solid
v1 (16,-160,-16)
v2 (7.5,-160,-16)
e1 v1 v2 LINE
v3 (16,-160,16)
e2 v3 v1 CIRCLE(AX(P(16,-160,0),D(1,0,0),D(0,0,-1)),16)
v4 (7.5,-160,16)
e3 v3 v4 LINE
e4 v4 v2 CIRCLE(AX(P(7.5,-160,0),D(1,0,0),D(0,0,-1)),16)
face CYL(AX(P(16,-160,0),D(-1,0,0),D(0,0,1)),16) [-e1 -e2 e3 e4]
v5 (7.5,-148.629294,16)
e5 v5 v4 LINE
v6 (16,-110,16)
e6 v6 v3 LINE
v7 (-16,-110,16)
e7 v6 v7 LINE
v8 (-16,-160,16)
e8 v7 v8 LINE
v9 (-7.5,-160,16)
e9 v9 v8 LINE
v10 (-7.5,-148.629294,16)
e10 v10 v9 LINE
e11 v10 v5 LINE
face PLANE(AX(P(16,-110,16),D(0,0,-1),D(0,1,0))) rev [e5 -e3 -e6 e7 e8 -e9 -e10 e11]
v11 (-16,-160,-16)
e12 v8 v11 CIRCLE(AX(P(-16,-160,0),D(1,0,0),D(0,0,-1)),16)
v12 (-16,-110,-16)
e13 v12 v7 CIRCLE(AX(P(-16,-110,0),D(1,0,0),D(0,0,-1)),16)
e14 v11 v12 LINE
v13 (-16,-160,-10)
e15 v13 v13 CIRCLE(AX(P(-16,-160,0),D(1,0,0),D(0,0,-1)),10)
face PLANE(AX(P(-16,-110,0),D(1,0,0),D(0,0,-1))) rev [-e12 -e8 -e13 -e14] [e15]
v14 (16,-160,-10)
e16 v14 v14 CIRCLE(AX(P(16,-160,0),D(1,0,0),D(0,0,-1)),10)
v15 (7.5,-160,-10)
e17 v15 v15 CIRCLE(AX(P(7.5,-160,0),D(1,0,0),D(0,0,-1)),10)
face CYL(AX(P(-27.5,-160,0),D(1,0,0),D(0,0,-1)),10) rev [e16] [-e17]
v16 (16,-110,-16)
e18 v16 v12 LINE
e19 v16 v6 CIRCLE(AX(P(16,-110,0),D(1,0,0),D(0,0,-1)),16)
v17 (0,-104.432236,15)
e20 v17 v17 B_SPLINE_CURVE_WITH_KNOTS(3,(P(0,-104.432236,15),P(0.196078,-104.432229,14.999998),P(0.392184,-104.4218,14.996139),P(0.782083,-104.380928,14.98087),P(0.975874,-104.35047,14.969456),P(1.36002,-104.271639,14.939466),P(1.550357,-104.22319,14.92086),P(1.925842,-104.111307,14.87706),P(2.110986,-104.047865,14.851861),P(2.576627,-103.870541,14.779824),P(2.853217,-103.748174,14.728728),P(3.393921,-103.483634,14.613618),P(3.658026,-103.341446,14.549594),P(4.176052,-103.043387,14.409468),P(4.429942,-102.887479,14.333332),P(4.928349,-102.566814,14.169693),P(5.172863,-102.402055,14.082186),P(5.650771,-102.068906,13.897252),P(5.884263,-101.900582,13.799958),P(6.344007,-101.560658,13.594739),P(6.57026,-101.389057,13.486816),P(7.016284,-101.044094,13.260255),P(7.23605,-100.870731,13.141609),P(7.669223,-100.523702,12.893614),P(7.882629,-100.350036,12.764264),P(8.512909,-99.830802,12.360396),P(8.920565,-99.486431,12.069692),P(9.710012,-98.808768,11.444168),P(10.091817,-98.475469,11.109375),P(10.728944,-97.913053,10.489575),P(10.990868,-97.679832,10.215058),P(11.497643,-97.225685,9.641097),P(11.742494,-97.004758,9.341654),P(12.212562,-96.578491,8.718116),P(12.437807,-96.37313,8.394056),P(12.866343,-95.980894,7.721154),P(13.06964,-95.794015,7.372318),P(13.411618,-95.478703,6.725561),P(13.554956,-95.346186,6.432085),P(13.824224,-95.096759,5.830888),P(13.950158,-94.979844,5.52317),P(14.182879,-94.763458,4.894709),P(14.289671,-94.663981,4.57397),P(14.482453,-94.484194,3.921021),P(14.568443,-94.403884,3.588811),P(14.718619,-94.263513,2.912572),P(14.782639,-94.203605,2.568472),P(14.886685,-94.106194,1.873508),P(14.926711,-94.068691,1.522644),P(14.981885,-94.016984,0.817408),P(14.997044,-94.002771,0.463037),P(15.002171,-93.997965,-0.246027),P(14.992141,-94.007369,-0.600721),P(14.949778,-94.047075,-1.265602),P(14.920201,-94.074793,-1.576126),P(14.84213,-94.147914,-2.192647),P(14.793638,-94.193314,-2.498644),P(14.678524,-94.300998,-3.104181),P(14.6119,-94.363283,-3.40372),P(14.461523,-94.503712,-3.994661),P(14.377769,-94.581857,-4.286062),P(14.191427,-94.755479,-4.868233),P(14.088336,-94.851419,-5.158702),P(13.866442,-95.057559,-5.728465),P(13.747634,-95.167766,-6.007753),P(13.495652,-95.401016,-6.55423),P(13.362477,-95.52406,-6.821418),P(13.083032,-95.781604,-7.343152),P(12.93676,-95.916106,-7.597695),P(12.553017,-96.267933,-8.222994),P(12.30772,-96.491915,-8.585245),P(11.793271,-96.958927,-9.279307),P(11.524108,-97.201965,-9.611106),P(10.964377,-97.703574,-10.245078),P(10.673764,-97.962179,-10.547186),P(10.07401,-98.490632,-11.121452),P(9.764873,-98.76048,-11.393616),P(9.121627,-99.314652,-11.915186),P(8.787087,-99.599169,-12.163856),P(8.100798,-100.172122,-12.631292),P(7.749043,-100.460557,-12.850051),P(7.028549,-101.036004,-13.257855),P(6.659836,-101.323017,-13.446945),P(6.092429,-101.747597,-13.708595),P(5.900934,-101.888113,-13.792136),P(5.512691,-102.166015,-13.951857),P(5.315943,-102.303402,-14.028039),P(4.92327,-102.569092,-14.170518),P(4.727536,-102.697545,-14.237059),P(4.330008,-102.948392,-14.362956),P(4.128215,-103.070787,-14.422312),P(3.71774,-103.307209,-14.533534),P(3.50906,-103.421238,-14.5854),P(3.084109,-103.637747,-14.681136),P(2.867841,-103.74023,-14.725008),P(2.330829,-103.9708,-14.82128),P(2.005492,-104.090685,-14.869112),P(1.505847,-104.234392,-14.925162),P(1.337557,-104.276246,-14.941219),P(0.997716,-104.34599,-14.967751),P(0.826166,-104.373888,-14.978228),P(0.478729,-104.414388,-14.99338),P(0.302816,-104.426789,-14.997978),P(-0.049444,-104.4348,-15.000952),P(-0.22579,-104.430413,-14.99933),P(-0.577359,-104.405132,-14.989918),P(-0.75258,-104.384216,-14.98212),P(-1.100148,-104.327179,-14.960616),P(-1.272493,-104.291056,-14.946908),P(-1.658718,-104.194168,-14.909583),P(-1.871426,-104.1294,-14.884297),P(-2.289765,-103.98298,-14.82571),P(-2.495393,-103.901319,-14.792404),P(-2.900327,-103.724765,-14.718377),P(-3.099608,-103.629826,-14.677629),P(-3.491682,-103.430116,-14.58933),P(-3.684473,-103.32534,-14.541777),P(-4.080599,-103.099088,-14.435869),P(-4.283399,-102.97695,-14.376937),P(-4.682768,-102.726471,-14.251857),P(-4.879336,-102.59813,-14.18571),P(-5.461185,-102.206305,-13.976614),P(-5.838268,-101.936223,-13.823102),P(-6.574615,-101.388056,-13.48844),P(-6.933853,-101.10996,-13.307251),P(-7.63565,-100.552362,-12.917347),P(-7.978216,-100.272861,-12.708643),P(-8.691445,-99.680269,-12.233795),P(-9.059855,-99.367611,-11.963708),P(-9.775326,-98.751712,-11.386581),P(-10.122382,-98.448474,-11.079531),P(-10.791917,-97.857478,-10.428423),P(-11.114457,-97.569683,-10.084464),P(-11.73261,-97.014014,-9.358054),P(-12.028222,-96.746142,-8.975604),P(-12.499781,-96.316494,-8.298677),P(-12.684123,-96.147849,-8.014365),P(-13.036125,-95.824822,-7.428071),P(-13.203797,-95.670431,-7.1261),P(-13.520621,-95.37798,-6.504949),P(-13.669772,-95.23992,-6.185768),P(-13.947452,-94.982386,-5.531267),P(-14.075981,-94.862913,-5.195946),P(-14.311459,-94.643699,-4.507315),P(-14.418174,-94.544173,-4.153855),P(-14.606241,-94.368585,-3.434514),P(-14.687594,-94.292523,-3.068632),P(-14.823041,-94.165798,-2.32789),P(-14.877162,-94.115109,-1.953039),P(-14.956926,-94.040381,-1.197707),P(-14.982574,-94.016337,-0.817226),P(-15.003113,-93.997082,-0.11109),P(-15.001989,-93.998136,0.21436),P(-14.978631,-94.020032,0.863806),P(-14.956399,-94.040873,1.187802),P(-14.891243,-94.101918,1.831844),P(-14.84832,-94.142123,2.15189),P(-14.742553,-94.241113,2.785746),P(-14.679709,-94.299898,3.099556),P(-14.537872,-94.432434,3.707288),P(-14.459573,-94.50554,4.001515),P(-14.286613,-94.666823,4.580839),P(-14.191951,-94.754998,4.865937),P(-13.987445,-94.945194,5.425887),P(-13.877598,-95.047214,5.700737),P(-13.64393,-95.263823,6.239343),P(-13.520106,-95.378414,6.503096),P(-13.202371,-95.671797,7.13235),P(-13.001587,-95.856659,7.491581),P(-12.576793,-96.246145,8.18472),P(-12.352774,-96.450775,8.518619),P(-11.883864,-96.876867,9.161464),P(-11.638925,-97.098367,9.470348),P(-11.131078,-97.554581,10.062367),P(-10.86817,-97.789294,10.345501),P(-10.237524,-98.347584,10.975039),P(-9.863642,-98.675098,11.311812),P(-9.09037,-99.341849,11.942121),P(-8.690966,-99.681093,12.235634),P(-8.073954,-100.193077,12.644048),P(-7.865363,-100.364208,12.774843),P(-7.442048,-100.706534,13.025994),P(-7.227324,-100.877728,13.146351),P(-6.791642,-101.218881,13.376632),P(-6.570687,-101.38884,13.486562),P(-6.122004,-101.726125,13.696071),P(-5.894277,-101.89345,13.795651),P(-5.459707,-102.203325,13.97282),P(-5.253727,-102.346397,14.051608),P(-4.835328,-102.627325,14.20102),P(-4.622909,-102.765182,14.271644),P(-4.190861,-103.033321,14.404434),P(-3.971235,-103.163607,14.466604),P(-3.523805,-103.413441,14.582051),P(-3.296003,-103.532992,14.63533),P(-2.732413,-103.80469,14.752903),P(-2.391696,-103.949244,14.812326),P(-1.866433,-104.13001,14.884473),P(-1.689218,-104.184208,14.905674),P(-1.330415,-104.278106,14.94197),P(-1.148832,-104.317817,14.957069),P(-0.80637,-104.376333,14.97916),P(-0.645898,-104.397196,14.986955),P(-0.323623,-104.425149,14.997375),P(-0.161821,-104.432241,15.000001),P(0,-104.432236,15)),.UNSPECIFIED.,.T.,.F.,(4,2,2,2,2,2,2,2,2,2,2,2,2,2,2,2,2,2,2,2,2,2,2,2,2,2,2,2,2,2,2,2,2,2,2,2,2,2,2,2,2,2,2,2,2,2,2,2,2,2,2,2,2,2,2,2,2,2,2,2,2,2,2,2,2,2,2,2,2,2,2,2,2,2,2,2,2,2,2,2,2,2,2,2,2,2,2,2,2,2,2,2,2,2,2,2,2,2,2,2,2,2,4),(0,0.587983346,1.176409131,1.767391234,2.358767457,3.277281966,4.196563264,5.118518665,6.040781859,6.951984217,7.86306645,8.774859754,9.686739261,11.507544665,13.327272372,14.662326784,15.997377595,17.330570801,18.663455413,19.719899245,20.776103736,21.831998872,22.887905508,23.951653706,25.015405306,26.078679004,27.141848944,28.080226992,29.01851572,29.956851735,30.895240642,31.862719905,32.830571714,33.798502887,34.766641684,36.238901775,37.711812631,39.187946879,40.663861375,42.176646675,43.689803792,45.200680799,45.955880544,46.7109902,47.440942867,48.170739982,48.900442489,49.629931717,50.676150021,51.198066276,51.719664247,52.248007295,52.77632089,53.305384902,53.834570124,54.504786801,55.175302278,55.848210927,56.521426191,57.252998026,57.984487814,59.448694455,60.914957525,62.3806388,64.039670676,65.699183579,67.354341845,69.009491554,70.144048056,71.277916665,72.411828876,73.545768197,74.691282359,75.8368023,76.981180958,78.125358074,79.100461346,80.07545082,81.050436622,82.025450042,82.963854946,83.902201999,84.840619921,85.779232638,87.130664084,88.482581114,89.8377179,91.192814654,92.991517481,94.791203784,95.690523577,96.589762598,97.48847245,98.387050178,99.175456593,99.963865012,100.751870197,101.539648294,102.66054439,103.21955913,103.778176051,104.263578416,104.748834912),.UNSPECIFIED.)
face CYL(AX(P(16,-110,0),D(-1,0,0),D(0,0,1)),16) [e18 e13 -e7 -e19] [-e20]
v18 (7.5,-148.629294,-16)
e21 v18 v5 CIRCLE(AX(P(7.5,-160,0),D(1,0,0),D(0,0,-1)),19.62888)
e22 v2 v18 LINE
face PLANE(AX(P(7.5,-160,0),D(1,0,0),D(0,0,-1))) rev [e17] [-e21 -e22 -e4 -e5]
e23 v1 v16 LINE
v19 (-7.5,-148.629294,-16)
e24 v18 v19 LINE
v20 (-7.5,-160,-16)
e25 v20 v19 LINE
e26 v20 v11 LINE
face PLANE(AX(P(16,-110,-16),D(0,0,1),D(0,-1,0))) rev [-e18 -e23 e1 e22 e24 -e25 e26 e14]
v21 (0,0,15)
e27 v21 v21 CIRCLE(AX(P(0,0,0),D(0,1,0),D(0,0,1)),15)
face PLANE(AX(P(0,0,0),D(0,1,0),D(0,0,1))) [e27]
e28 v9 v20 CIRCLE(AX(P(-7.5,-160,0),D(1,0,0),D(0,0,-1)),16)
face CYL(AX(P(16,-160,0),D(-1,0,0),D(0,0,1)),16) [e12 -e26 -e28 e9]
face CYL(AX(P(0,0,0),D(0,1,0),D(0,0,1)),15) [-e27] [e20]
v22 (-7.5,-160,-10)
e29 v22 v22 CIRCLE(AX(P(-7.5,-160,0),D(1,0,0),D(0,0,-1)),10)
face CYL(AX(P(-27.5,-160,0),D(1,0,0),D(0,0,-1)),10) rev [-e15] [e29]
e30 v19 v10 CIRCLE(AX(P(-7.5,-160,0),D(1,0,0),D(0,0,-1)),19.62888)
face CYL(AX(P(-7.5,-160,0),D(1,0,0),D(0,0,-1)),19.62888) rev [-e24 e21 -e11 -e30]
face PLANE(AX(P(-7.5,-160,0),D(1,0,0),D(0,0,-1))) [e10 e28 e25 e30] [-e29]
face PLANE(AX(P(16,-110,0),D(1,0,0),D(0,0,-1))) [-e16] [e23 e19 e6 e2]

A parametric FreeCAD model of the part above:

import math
import FreeCAD as App
import Part
import Sketcher
Q = App.Units.Quantity

doc = App.newDocument("Part")
body = doc.addObject("PartDesign::Body", "Body")

# Sketch on YZ plane
sketch1 = body.newObject("Sketcher::SketchObject", "Sketch")
sketch1.AttachmentSupport = (doc.getObject("YZ_Plane"), [""])
sketch1.MapMode = "FlatFace"
sketch1.addGeometry([
    Part.LineSegment(App.Vector(0, 15, 0), App.Vector(-110, 15, 0)),
    Part.LineSegment(App.Vector(-110, 15, 0), App.Vector(-110, 0, 0)),
    Part.LineSegment(App.Vector(-110, 0, 0), App.Vector(0, 0, 0)),
    Part.LineSegment(App.Vector(0, 0, 0), App.Vector(0, 15, 0)),
], False)
sketch1.addConstraint([
    Sketcher.Constraint("Coincident", 0, 2, 1, 1),
    Sketcher.Constraint("Coincident", 1, 2, 2, 1),
    Sketcher.Constraint("Coincident", 2, 2, 3, 1),
    Sketcher.Constraint("Coincident", 3, 2, 0, 1),
    Sketcher.Constraint("Horizontal", 0),
    Sketcher.Constraint("Vertical", 1),
    Sketcher.Constraint("Horizontal", 2),
    Sketcher.Constraint("Vertical", 3),
    Sketcher.Constraint("Coincident", 2, 2, -1, 1),
    Sketcher.Constraint("DistanceX", 0, 2, 0, 1, Q("110 mm")),
    Sketcher.Constraint("DistanceY", 1, 2, 1, 1, Q("15 mm")),
])
revolution = body.newObject("PartDesign::Revolution", "Revolution")
revolution.Profile = sketch1
revolution.ReferenceAxis = (sketch1, ["H_Axis"])
revolution.Angle = 360

# Sketch on YZ plane
sketch2 = body.newObject("Sketcher::SketchObject", "Sketch001")
sketch2.AttachmentSupport = (doc.getObject("YZ_Plane"), [""])
sketch2.MapMode = "FlatFace"
sketch2.addGeometry([
    Part.LineSegment(App.Vector(-160, -16, 0), App.Vector(-110, -16, 0)),
    Part.ArcOfCircle(Part.Circle(App.Vector(-110, 0, 0), App.Vector(0, 0, 1), 16), math.radians(-90), math.radians(90)),
    Part.LineSegment(App.Vector(-110, 16, 0), App.Vector(-160, 16, 0)),
    Part.ArcOfCircle(Part.Circle(App.Vector(-160, 0, 0), App.Vector(0, 0, 1), 16), math.radians(90), math.radians(270)),
], False)
sketch2.addConstraint([
    Sketcher.Constraint("Tangent", 0, 2, 1, 1),
    Sketcher.Constraint("Tangent", 1, 2, 2, 1),
    Sketcher.Constraint("Tangent", 2, 2, 3, 1),
    Sketcher.Constraint("Tangent", 3, 2, 0, 1),
    Sketcher.Constraint("Horizontal", 0),
    Sketcher.Constraint("Horizontal", 2),
    Sketcher.Constraint("PointOnObject", 1, 3, -1),
    Sketcher.Constraint("Radius", 1, Q("16 mm")),
    Sketcher.Constraint("DistanceX", 0, 1, 0, 2, Q("50 mm")),
    Sketcher.Constraint("DistanceX", 1, 3, -1, 1, Q("110 mm")),
])
pad1 = body.newObject("PartDesign::Pad", "Pad")
pad1.Profile = sketch2
pad1.Length = 32
pad1.Midplane = True

# Sketch on YZ plane
sketch3 = body.newObject("Sketcher::SketchObject", "Sketch002")
sketch3.AttachmentSupport = (doc.getObject("YZ_Plane"), [""])
sketch3.MapMode = "FlatFace"
sketch3.addGeometry(Part.Circle(App.Vector(-160, 0, 0), App.Vector(0, 0, 1), 20), False)
sketch3.addConstraint([
    Sketcher.Constraint("PointOnObject", 0, 3, -1),
    Sketcher.Constraint("DistanceX", 0, 3, -1, 1, Q("160 mm")),
    Sketcher.Constraint("Diameter", 0, Q("39.257761 mm")),
])
pocket1 = body.newObject("PartDesign::Pocket", "Pocket")
pocket1.Profile = sketch3
pocket1.Length = 15
pocket1.Midplane = True

# Sketch on YZ plane
sketch4 = body.newObject("Sketcher::SketchObject", "Sketch003")
sketch4.AttachmentSupport = (doc.getObject("YZ_Plane"), [""])
sketch4.MapMode = "FlatFace"
sketch4.addGeometry(Part.Circle(App.Vector(-160, 0, 0), App.Vector(0, 0, 1), 10), False)
sketch4.addConstraint([
    Sketcher.Constraint("PointOnObject", 0, 3, -1),
    Sketcher.Constraint("Diameter", 0, Q("20 mm")),
    Sketcher.Constraint("DistanceX", 0, 3, -1, 1, Q("160 mm")),
])
pocket2 = body.newObject("PartDesign::Pocket", "Pocket001")
pocket2.Profile = sketch4
pocket2.Length = 55
pocket2.Midplane = True

doc.recompute()
